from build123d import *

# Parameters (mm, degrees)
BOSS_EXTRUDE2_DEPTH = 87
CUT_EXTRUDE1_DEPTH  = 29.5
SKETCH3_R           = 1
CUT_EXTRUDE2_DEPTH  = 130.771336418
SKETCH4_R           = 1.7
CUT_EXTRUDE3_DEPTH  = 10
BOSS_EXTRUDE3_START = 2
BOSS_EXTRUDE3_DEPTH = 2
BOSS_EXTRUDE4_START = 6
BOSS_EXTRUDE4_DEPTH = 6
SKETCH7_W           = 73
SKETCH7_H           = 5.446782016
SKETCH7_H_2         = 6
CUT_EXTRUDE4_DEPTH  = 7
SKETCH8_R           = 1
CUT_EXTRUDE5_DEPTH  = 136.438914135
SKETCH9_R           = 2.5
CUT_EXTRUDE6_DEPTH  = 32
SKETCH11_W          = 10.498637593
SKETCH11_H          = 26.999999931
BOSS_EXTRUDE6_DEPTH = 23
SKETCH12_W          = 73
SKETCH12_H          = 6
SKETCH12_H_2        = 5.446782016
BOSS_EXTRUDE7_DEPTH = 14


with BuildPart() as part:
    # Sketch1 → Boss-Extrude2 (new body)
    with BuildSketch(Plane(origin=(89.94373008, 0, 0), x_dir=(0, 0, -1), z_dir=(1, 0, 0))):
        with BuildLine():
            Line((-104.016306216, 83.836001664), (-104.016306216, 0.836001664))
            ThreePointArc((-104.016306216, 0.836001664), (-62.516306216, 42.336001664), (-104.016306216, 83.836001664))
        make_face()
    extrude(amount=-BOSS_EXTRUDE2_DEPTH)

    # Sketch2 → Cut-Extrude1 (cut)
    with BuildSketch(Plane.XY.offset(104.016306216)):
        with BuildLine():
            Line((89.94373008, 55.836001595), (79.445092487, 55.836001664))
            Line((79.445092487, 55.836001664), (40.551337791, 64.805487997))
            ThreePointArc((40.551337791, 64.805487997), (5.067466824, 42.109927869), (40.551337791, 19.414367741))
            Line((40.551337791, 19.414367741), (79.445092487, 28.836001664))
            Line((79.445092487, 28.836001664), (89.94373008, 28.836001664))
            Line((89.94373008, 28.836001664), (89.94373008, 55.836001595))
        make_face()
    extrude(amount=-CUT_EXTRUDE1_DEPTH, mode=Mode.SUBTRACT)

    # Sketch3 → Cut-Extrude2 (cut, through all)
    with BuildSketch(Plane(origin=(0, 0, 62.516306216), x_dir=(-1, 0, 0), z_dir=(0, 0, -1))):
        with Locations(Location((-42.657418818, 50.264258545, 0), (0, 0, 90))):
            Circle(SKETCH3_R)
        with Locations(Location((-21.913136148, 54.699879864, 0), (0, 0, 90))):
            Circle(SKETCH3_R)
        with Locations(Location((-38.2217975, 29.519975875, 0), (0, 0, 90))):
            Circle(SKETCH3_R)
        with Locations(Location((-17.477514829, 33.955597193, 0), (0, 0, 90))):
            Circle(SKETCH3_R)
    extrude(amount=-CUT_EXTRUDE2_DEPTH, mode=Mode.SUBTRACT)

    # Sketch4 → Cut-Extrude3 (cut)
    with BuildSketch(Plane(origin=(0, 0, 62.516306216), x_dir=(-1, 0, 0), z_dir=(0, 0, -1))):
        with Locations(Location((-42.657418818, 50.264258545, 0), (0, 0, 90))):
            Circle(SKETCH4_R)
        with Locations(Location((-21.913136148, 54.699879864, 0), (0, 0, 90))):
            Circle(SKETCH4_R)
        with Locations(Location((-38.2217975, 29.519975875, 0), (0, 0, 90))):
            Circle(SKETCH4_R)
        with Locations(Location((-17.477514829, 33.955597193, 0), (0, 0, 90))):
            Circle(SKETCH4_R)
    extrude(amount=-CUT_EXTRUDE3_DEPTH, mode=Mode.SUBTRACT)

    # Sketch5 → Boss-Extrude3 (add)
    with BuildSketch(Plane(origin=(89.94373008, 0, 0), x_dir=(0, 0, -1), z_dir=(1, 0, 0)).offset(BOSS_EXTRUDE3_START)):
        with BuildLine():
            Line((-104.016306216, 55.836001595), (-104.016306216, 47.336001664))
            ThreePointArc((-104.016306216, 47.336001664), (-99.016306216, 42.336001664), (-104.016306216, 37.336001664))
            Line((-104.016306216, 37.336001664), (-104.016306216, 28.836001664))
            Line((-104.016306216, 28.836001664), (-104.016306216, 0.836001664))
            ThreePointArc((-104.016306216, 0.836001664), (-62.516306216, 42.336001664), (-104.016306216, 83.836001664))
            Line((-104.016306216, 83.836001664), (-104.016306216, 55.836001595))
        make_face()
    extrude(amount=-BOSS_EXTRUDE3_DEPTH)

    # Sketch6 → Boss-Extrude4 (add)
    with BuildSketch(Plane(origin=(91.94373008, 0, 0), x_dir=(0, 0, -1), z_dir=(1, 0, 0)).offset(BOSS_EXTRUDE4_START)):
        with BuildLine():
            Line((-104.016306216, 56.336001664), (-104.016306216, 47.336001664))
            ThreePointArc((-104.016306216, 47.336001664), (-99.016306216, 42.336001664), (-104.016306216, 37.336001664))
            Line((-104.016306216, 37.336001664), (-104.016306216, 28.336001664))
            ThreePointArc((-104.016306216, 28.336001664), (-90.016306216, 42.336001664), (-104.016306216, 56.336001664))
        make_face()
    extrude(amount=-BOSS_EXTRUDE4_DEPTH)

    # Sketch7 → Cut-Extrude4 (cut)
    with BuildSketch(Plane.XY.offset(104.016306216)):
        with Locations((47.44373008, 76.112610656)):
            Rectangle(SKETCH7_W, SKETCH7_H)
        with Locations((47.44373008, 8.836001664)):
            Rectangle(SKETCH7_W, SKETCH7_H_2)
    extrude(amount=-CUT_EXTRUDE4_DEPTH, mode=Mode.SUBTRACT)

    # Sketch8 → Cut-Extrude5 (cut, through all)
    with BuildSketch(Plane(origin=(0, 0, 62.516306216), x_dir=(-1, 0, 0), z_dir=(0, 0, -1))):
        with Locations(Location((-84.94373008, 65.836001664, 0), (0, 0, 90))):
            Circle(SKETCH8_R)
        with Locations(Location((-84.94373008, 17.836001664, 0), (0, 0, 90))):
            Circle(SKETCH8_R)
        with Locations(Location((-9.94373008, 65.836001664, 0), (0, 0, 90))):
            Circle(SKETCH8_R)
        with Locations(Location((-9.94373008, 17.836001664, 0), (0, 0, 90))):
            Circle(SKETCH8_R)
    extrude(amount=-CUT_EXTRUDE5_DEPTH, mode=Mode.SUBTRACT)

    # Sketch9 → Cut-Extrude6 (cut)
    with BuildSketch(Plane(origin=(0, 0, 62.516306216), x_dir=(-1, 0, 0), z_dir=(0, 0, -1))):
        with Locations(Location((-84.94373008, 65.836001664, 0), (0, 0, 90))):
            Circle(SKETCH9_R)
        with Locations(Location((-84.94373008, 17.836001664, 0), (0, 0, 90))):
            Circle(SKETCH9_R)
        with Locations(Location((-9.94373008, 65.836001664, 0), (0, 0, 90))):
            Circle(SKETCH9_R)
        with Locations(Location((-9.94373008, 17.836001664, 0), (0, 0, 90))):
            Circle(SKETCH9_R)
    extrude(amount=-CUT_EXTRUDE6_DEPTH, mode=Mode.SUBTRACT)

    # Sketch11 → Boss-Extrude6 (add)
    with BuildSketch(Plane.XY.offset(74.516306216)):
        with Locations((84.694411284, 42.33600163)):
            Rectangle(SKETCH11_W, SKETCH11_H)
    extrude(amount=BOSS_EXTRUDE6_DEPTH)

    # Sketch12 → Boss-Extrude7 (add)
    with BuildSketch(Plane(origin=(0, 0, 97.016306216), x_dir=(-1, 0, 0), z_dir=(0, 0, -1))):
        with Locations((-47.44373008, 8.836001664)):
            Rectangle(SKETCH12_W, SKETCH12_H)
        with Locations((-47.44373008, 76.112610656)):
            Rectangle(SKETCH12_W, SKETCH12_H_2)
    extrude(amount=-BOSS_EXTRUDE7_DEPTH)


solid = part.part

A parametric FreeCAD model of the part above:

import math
import FreeCAD as App
import Part
import Sketcher

V = App.Vector


def add_polygon(sketch, points):
    """Adds a closed chain of lines whose ends are joined by coincident constraints."""
    first, n = sketch.GeometryCount, len(points)
    for a, b in zip(points, points[1:] + points[:1]):
        sketch.addGeometry(Part.LineSegment(App.Vector(*a, 0), App.Vector(*b, 0)), False)
    for i in range(n):
        sketch.addConstraint(Sketcher.Constraint("Coincident", first + i, 2, first + (i + 1) % n, 1))

doc = App.newDocument("Part")
params = doc.addObject("Spreadsheet::Sheet", "Params")
for row, (alias, value) in enumerate([
    ("sketch1_radius", "41.5 mm"),
    ("pad1_length", "87 mm"),
    ("sketch2_radius", "25 mm"),
    ("sketch2_height", "27 mm"),
    ("pocket1_length", "29.5 mm"),
    ("sketch3_diameter", "2 mm"),
    ("sketch4_diameter", "3.4 mm"),
    ("pocket3_length", "10 mm"),
    ("sketch5_radius", "5 mm"),
    ("sketch5_radius2", "41.5 mm"),
    ("pad2_length", "2 mm"),
    ("sketch6_radius", "5 mm"),
    ("sketch6_radius2", "14 mm"),
    ("pad3_length", "6 mm"),
    ("sketch7_width", "73 mm"),
    ("sketch7_height", "6 mm"),
    ("pocket4_length", "7 mm"),
    ("sketch8_diameter", "2 mm"),
    ("sketch9_diameter", "5 mm"),
    ("pocket6_length", "32 mm"),
    ("sketch10_height", "27 mm"),
    ("pad4_length", "23 mm"),
    ("sketch11_width", "73 mm"),
    ("sketch11_height", "6 mm"),
    ("pad5_length", "14 mm"),
], start=1):
    params.set(f"A{row}", alias)
    params.set(f"B{row}", "=" + value)
    params.setAlias(f"B{row}", alias)

body = doc.addObject("PartDesign::Body", "Body")

# Sketch on YZ plane
sketch1 = body.newObject("Sketcher::SketchObject", "Sketch")
sketch1.AttachmentSupport = (doc.getObject("YZ_Plane"), [""])
sketch1.MapMode = "FlatFace"
sketch1.AttachmentOffset = App.Placement(V(0, 0, 89.94373), App.Rotation())
sketch1.addGeometry([
    Part.LineSegment(V(84, 104, 0), V(1, 104, 0)),
    Part.ArcOfCircle(Part.Circle(V(42, 104, 0), V(0, 0, 1), 42), math.radians(180), math.radians(360)),
], False)
sketch1.addConstraint([
    Sketcher.Constraint("Coincident", 0, 1, 1, 2),
    Sketcher.Constraint("Coincident", 1, 1, 0, 2),
    Sketcher.Constraint("Horizontal", 0),
    Sketcher.Constraint("Horizontal", 1, 3, 0, 1),
    Sketcher.Constraint("Radius", 1, 41.5),
    Sketcher.Constraint("DistanceX", -1, 1, 1, 3, 42.336002),
    Sketcher.Constraint("DistanceY", -1, 1, 1, 3, 104.016306),
])
sketch1.setExpression("Constraints[4]", "Params.sketch1_radius")
pad1 = body.newObject("PartDesign::Pad", "Pad")
pad1.Profile = sketch1
pad1.setExpression("Length", "Params.pad1_length")
pad1.Reversed = True

# Sketch on XY plane
sketch2 = body.newObject("Sketcher::SketchObject", "Sketch001")
sketch2.AttachmentSupport = (doc.getObject("XY_Plane"), [""])
sketch2.MapMode = "FlatFace"
sketch2.AttachmentOffset = App.Placement(V(0, 0, 104.016306), App.Rotation())
sketch2.addGeometry([
    Part.LineSegment(V(90, 56, 0), V(79, 56, 0)),  # 0
    Part.LineSegment(V(79, 56, 0), V(41, 65, 0)),  # 1
    Part.ArcOfCircle(Part.Circle(V(30, 42, 0), V(0, 0, 1), 25), math.radians(65), math.radians(295)),  # 2
    Part.LineSegment(V(41, 19, 0), V(79, 29, 0)),  # 3
    Part.LineSegment(V(79, 29, 0), V(90, 29, 0)),  # 4
    Part.LineSegment(V(90, 29, 0), V(90, 56, 0)),  # 5
], False)
sketch2.addConstraint([
    Sketcher.Constraint("Coincident", 0, 2, 1, 1),
    Sketcher.Constraint("Coincident", 1, 2, 2, 1),
    Sketcher.Constraint("Coincident", 2, 2, 3, 1),
    Sketcher.Constraint("Coincident", 3, 2, 4, 1),
    Sketcher.Constraint("Coincident", 4, 2, 5, 1),
    Sketcher.Constraint("Coincident", 5, 2, 0, 1),
    Sketcher.Constraint("Horizontal", 0),
    Sketcher.Constraint("Horizontal", 4),
    Sketcher.Constraint("Vertical", 5),
    Sketcher.Constraint("Vertical", 1, 2, 2, 2),
    Sketcher.Constraint("Vertical", 0, 2, 3, 2),
    Sketcher.Constraint("Radius", 2, 25.0),
    Sketcher.Constraint("DistanceY", 5, 1, 5, 2, 27.0),
    Sketcher.Constraint("DistanceY", -1, 1, 0, 2, 55.836002),
    Sketcher.Constraint("DistanceX", 0, 2, 0, 1, 10.498638),
    Sketcher.Constraint("DistanceX", -1, 1, 4, 2, 89.94373),
    Sketcher.Constraint("DistanceX", 2, 3, 1, 2, 10.483871),
    Sketcher.Constraint("Distance", 1, 39.914607),
    Sketcher.Constraint("Distance", 3, 40.018637),
])
sketch2.setExpression("Constraints[11]", "Params.sketch2_radius")
sketch2.setExpression("Constraints[12]", "Params.sketch2_height")
pocket1 = body.newObject("PartDesign::Pocket", "Pocket")
pocket1.Profile = sketch2
pocket1.setExpression("Length", "Params.pocket1_length")

# Sketch on XY plane
sketch3 = body.newObject("Sketcher::SketchObject", "Sketch002")
sketch3.AttachmentSupport = (doc.getObject("XY_Plane"), [""])
sketch3.MapMode = "FlatFace"
sketch3.AttachmentOffset = App.Placement(V(0, 0, 62.516306), App.Rotation())
sketch3.addGeometry([
    Part.Circle(V(42.7, 50.3, 0), V(0, 0, 1), 1),
    Part.Circle(V(21.9, 54.7, 0), V(0, 0, 1), 1),
    Part.Circle(V(38.2, 29.5, 0), V(0, 0, 1), 1),
    Part.Circle(V(17.5, 34, 0), V(0, 0, 1), 1),
], False)
sketch3.addConstraint([
    Sketcher.Constraint("Equal", 0, 1),
    Sketcher.Constraint("Equal", 1, 2),
    Sketcher.Constraint("Equal", 2, 3),
    Sketcher.Constraint("Diameter", 0, 2.0),
    Sketcher.Constraint("DistanceX", -1, 1, 0, 3, 42.657419),
    Sketcher.Constraint("DistanceY", -1, 1, 0, 3, 50.264259),
    Sketcher.Constraint("DistanceY", -1, 1, 1, 3, 54.69988),
    Sketcher.Constraint("DistanceX", 2, 3, 0, 3, 4.435621),
    Sketcher.Constraint("DistanceX", 1, 3, 2, 3, 16.308661),
    Sketcher.Constraint("DistanceY", 2, 3, 3, 3, 4.435621),
    Sketcher.Constraint("DistanceX", 3, 3, 1, 3, 4.435621),
    Sketcher.Constraint("DistanceY", 3, 3, 0, 3, 16.308661),
])
sketch3.setExpression("Constraints[3]", "Params.sketch3_diameter")
pocket2 = body.newObject("PartDesign::Pocket", "Pocket001")
pocket2.Profile = sketch3
pocket2.Type = "ThroughAll"
pocket2.Reversed = True

# Sketch on XY plane
sketch4 = body.newObject("Sketcher::SketchObject", "Sketch003")
sketch4.AttachmentSupport = (doc.getObject("XY_Plane"), [""])
sketch4.MapMode = "FlatFace"
sketch4.AttachmentOffset = App.Placement(V(0, 0, 62.516306), App.Rotation())
sketch4.addGeometry([
    Part.Circle(V(42.7, 50.3, 0), V(0, 0, 1), 1.7),
    Part.Circle(V(21.9, 54.7, 0), V(0, 0, 1), 1.7),
    Part.Circle(V(38.2, 29.5, 0), V(0, 0, 1), 1.7),
    Part.Circle(V(17.5, 34, 0), V(0, 0, 1), 1.7),
], False)
sketch4.addConstraint([
    Sketcher.Constraint("Equal", 0, 1),
    Sketcher.Constraint("Equal", 1, 2),
    Sketcher.Constraint("Equal", 2, 3),
    Sketcher.Constraint("Diameter", 0, 3.4),
    Sketcher.Constraint("DistanceX", -1, 1, 0, 3, 42.657419),
    Sketcher.Constraint("DistanceY", -1, 1, 0, 3, 50.264259),
    Sketcher.Constraint("DistanceY", -1, 1, 1, 3, 54.69988),
    Sketcher.Constraint("DistanceX", 2, 3, 0, 3, 4.435621),
    Sketcher.Constraint("DistanceX", 1, 3, 2, 3, 16.308661),
    Sketcher.Constraint("DistanceY", 2, 3, 3, 3, 4.435621),
    Sketcher.Constraint("DistanceX", 3, 3, 1, 3, 4.435621),
    Sketcher.Constraint("DistanceY", 3, 3, 0, 3, 16.308661),
])
sketch4.setExpression("Constraints[3]", "Params.sketch4_diameter")
pocket3 = body.newObject("PartDesign::Pocket", "Pocket002")
pocket3.Profile = sketch4
pocket3.setExpression("Length", "Params.pocket3_length")
pocket3.Reversed = True

# Sketch on YZ plane
sketch5 = body.newObject("Sketcher::SketchObject", "Sketch004")
sketch5.AttachmentSupport = (doc.getObject("YZ_Plane"), [""])
sketch5.MapMode = "FlatFace"
sketch5.AttachmentOffset = App.Placement(V(0, 0, 91.94373), App.Rotation())
sketch5.addGeometry([
    Part.ArcOfCircle(Part.Circle(V(42, 104, 0), V(0, 0, 1), 5), math.radians(180), math.radians(360)),
    Part.LineSegment(V(37, 104, 0), V(1, 104, 0)),
    Part.ArcOfCircle(Part.Circle(V(42, 104, 0), V(0, 0, 1), 42), math.radians(180), math.radians(360)),
    Part.LineSegment(V(84, 104, 0), V(47, 104, 0)),
], False)
sketch5.addConstraint([
    Sketcher.Constraint("Coincident", 0, 1, 1, 1),
    Sketcher.Constraint("Coincident", 1, 2, 2, 1),
    Sketcher.Constraint("Coincident", 2, 2, 3, 1),
    Sketcher.Constraint("Coincident", 3, 2, 0, 2),
    Sketcher.Constraint("Horizontal", 1),
    Sketcher.Constraint("Horizontal", 3),
    Sketcher.Constraint("Coincident", 2, 3, 0, 3),
    Sketcher.Constraint("Horizontal", 2, 3, 0, 1),
    Sketcher.Constraint("Horizontal", 1, 2, 2, 2),
    Sketcher.Constraint("Radius", 0, 5.0),
    Sketcher.Constraint("Radius", 2, 41.5),
    Sketcher.Constraint("DistanceX", -1, 1, 0, 3, 42.336002),
    Sketcher.Constraint("DistanceY", -1, 1, 0, 3, 104.016306),
])
sketch5.setExpression("Constraints[9]", "Params.sketch5_radius")
sketch5.setExpression("Constraints[10]", "Params.sketch5_radius2")
pad2 = body.newObject("PartDesign::Pad", "Pad001")
pad2.Profile = sketch5
pad2.setExpression("Length", "Params.pad2_length")
pad2.Reversed = True

# Sketch on YZ plane
sketch6 = body.newObject("Sketcher::SketchObject", "Sketch005")
sketch6.AttachmentSupport = (doc.getObject("YZ_Plane"), [""])
sketch6.MapMode = "FlatFace"
sketch6.AttachmentOffset = App.Placement(V(0, 0, 97.94373), App.Rotation())
sketch6.addGeometry([
    Part.LineSegment(V(56, 104, 0), V(47, 104, 0)),
    Part.ArcOfCircle(Part.Circle(V(42, 104, 0), V(0, 0, 1), 5), math.radians(180), math.radians(360)),
    Part.LineSegment(V(37, 104, 0), V(28, 104, 0)),
    Part.ArcOfCircle(Part.Circle(V(42, 104, 0), V(0, 0, 1), 14), math.radians(180), math.radians(360)),
], False)
sketch6.addConstraint([
    Sketcher.Constraint("Coincident", 0, 2, 1, 2),
    Sketcher.Constraint("Coincident", 1, 1, 2, 1),
    Sketcher.Constraint("Coincident", 2, 2, 3, 1),
    Sketcher.Constraint("Coincident", 3, 2, 0, 1),
    Sketcher.Constraint("Horizontal", 0),
    Sketcher.Constraint("Horizontal", 2),
    Sketcher.Constraint("Coincident", 3, 3, 1, 3),
    Sketcher.Constraint("Horizontal", 3, 3, 0, 2),
    Sketcher.Constraint("Horizontal", 0, 2, 1, 1),
    Sketcher.Constraint("Radius", 1, 5.0),
    Sketcher.Constraint("Radius", 3, 14.0),
    Sketcher.Constraint("DistanceX", -1, 1, 1, 3, 42.336002),
    Sketcher.Constraint("DistanceY", -1, 1, 1, 3, 104.016306),
])
sketch6.setExpression("Constraints[9]", "Params.sketch6_radius")
sketch6.setExpression("Constraints[10]", "Params.sketch6_radius2")
pad3 = body.newObject("PartDesign::Pad", "Pad002")
pad3.Profile = sketch6
pad3.setExpression("Length", "Params.pad3_length")
pad3.Reversed = True

# Sketch on XY plane
sketch7 = body.newObject("Sketcher::SketchObject", "Sketch006")
sketch7.AttachmentSupport = (doc.getObject("XY_Plane"), [""])
sketch7.MapMode = "FlatFace"
sketch7.AttachmentOffset = App.Placement(V(0, 0, 104.016306), App.Rotation())
add_polygon(sketch7, [(11, 79), (11, 73), (84, 73), (84, 79)])  # lines 0-3
add_polygon(sketch7, [(11, 12), (11, 6), (84, 6), (84, 12)])  # lines 4-7
sketch7.addConstraint([
    Sketcher.Constraint("Vertical", 0),
    Sketcher.Constraint("Horizontal", 1),
    Sketcher.Constraint("Vertical", 2),
    Sketcher.Constraint("Horizontal", 3),
    Sketcher.Constraint("Vertical", 4),
    Sketcher.Constraint("Horizontal", 5),
    Sketcher.Constraint("Vertical", 6),
    Sketcher.Constraint("Horizontal", 7),
    Sketcher.Constraint("Vertical", 3, 2, 4, 2),
    Sketcher.Constraint("Vertical", 2, 2, 5, 2),
    Sketcher.Constraint("DistanceX", 1, 1, 1, 2, 73.0),
    Sketcher.Constraint("DistanceY", 4, 2, 4, 1, 6.0),
    Sketcher.Constraint("DistanceY", 4, 2, 3, 2, 73.0),
    Sketcher.Constraint("DistanceY", -1, 1, 2, 2, 78.836002),
    Sketcher.Constraint("DistanceY", 0, 2, 0, 1, 5.446782),
    Sketcher.Constraint("DistanceX", -1, 1, 0, 2, 10.94373),
])
sketch7.setExpression("Constraints[18]", "Params.sketch7_width")
sketch7.setExpression("Constraints[19]", "Params.sketch7_height")
pocket4 = body.newObject("PartDesign::Pocket", "Pocket003")
pocket4.Profile = sketch7
pocket4.setExpression("Length", "Params.pocket4_length")

# Sketch on XY plane
sketch8 = body.newObject("Sketcher::SketchObject", "Sketch007")
sketch8.AttachmentSupport = (doc.getObject("XY_Plane"), [""])
sketch8.MapMode = "FlatFace"
sketch8.AttachmentOffset = App.Placement(V(0, 0, 62.516306), App.Rotation())
sketch8.addGeometry([
    Part.Circle(V(84.9, 65.8, 0), V(0, 0, 1), 1),
    Part.Circle(V(84.9, 17.8, 0), V(0, 0, 1), 1),
    Part.Circle(V(9.9, 65.8, 0), V(0, 0, 1), 1),
    Part.Circle(V(9.9, 17.8, 0), V(0, 0, 1), 1),
], False)
sketch8.addConstraint([
    Sketcher.Constraint("Equal", 0, 1),
    Sketcher.Constraint("Equal", 1, 2),
    Sketcher.Constraint("Equal", 2, 3),
    Sketcher.Constraint("Horizontal", 0, 3, 2, 3),
    Sketcher.Constraint("Horizontal", 1, 3, 3, 3),
    Sketcher.Constraint("Vertical", 0, 3, 1, 3),
    Sketcher.Constraint("Vertical", 2, 3, 3, 3),
    Sketcher.Constraint("Diameter", 0, 2.0),
    Sketcher.Constraint("DistanceY", 1, 3, 0, 3, 48.0),
    Sketcher.Constraint("DistanceX", 2, 3, 0, 3, 75.0),
    Sketcher.Constraint("DistanceY", -1, 1, 0, 3, 65.836002),
    Sketcher.Constraint("DistanceX", -1, 1, 0, 3, 84.94373),
])
sketch8.setExpression("Constraints[7]", "Params.sketch8_diameter")
pocket5 = body.newObject("PartDesign::Pocket", "Pocket004")
pocket5.Profile = sketch8
pocket5.Type = "ThroughAll"
pocket5.Reversed = True

# Sketch on XY plane
sketch9 = body.newObject("Sketcher::SketchObject", "Sketch008")
sketch9.AttachmentSupport = (doc.getObject("XY_Plane"), [""])
sketch9.MapMode = "FlatFace"
sketch9.AttachmentOffset = App.Placement(V(0, 0, 62.516306), App.Rotation())
sketch9.addGeometry([
    Part.Circle(V(84.9, 65.8, 0), V(0, 0, 1), 2.5),
    Part.Circle(V(84.9, 17.8, 0), V(0, 0, 1), 2.5),
    Part.Circle(V(9.9, 65.8, 0), V(0, 0, 1), 2.5),
    Part.Circle(V(9.9, 17.8, 0), V(0, 0, 1), 2.5),
], False)
sketch9.addConstraint([
    Sketcher.Constraint("Equal", 0, 1),
    Sketcher.Constraint("Equal", 1, 2),
    Sketcher.Constraint("Equal", 2, 3),
    Sketcher.Constraint("Horizontal", 0, 3, 2, 3),
    Sketcher.Constraint("Horizontal", 1, 3, 3, 3),
    Sketcher.Constraint("Vertical", 0, 3, 1, 3),
    Sketcher.Constraint("Vertical", 2, 3, 3, 3),
    Sketcher.Constraint("Diameter", 0, 5.0),
    Sketcher.Constraint("DistanceY", 1, 3, 0, 3, 48.0),
    Sketcher.Constraint("DistanceX", 2, 3, 0, 3, 75.0),
    Sketcher.Constraint("DistanceY", -1, 1, 0, 3, 65.836002),
    Sketcher.Constraint("DistanceX", -1, 1, 0, 3, 84.94373),
])
sketch9.setExpression("Constraints[7]", "Params.sketch9_diameter")
pocket6 = body.newObject("PartDesign::Pocket", "Pocket005")
pocket6.Profile = sketch9
pocket6.setExpression("Length", "Params.pocket6_length")
pocket6.Reversed = True

# Sketch on XY plane
sketch10 = body.newObject("Sketcher::SketchObject", "Sketch009")
sketch10.AttachmentSupport = (doc.getObject("XY_Plane"), [""])
sketch10.MapMode = "FlatFace"
sketch10.AttachmentOffset = App.Placement(V(0, 0, 74.516306), App.Rotation())
add_polygon(sketch10, [(79, 56), (79, 29), (90, 29), (90, 56)])  # lines 0-3
sketch10.addConstraint([
    Sketcher.Constraint("Vertical", 0),
    Sketcher.Constraint("Horizontal", 1),
    Sketcher.Constraint("Vertical", 2),
    Sketcher.Constraint("Horizontal", 3),
    Sketcher.Constraint("DistanceY", 0, 2, 0, 1, 27.0),
    Sketcher.Constraint("DistanceY", -1, 1, 0, 2, 28.836002),
    Sketcher.Constraint("DistanceX", 1, 1, 1, 2, 10.498638),
    Sketcher.Constraint("DistanceX", -1, 1, 1, 2, 89.94373),
])
sketch10.setExpression("Constraints[8]", "Params.sketch10_height")
pad4 = body.newObject("PartDesign::Pad", "Pad003")
pad4.Profile = sketch10
pad4.setExpression("Length", "Params.pad4_length")

# Sketch on XY plane
sketch11 = body.newObject("Sketcher::SketchObject", "Sketch010")
sketch11.AttachmentSupport = (doc.getObject("XY_Plane"), [""])
sketch11.MapMode = "FlatFace"
sketch11.AttachmentOffset = App.Placement(V(0, 0, 97.016306), App.Rotation())
add_polygon(sketch11, [(84, 12), (84, 6), (11, 6), (11, 12)])  # lines 0-3
add_polygon(sketch11, [(84, 79), (84, 73), (11, 73), (11, 79)])  # lines 4-7
sketch11.addConstraint([
    Sketcher.Constraint("Vertical", 0),
    Sketcher.Constraint("Horizontal", 1),
    Sketcher.Constraint("Vertical", 2),
    Sketcher.Constraint("Horizontal", 3),
    Sketcher.Constraint("Vertical", 4),
    Sketcher.Constraint("Horizontal", 5),
    Sketcher.Constraint("Vertical", 6),
    Sketcher.Constraint("Horizontal", 7),
    Sketcher.Constraint("Vertical", 3, 2, 4, 2),
    Sketcher.Constraint("Vertical", 2, 2, 5, 2),
    Sketcher.Constraint("DistanceX", 1, 2, 1, 1, 73.0),
    Sketcher.Constraint("DistanceY", 0, 2, 0, 1, 6.0),
    Sketcher.Constraint("DistanceY", 2, 2, 6, 2, 67.0),
    Sketcher.Constraint("DistanceY", -1, 1, 0, 2, 5.836002),
    Sketcher.Constraint("DistanceY", 4, 2, 4, 1, 5.446782),
    Sketcher.Constraint("DistanceX", -1, 1, 0, 2, 83.94373),
])
sketch11.setExpression("Constraints[18]", "Params.sketch11_width")
sketch11.setExpression("Constraints[19]", "Params.sketch11_height")
pad5 = body.newObject("PartDesign::Pad", "Pad004")
pad5.Profile = sketch11
pad5.setExpression("Length", "Params.pad5_length")

doc.recompute()
